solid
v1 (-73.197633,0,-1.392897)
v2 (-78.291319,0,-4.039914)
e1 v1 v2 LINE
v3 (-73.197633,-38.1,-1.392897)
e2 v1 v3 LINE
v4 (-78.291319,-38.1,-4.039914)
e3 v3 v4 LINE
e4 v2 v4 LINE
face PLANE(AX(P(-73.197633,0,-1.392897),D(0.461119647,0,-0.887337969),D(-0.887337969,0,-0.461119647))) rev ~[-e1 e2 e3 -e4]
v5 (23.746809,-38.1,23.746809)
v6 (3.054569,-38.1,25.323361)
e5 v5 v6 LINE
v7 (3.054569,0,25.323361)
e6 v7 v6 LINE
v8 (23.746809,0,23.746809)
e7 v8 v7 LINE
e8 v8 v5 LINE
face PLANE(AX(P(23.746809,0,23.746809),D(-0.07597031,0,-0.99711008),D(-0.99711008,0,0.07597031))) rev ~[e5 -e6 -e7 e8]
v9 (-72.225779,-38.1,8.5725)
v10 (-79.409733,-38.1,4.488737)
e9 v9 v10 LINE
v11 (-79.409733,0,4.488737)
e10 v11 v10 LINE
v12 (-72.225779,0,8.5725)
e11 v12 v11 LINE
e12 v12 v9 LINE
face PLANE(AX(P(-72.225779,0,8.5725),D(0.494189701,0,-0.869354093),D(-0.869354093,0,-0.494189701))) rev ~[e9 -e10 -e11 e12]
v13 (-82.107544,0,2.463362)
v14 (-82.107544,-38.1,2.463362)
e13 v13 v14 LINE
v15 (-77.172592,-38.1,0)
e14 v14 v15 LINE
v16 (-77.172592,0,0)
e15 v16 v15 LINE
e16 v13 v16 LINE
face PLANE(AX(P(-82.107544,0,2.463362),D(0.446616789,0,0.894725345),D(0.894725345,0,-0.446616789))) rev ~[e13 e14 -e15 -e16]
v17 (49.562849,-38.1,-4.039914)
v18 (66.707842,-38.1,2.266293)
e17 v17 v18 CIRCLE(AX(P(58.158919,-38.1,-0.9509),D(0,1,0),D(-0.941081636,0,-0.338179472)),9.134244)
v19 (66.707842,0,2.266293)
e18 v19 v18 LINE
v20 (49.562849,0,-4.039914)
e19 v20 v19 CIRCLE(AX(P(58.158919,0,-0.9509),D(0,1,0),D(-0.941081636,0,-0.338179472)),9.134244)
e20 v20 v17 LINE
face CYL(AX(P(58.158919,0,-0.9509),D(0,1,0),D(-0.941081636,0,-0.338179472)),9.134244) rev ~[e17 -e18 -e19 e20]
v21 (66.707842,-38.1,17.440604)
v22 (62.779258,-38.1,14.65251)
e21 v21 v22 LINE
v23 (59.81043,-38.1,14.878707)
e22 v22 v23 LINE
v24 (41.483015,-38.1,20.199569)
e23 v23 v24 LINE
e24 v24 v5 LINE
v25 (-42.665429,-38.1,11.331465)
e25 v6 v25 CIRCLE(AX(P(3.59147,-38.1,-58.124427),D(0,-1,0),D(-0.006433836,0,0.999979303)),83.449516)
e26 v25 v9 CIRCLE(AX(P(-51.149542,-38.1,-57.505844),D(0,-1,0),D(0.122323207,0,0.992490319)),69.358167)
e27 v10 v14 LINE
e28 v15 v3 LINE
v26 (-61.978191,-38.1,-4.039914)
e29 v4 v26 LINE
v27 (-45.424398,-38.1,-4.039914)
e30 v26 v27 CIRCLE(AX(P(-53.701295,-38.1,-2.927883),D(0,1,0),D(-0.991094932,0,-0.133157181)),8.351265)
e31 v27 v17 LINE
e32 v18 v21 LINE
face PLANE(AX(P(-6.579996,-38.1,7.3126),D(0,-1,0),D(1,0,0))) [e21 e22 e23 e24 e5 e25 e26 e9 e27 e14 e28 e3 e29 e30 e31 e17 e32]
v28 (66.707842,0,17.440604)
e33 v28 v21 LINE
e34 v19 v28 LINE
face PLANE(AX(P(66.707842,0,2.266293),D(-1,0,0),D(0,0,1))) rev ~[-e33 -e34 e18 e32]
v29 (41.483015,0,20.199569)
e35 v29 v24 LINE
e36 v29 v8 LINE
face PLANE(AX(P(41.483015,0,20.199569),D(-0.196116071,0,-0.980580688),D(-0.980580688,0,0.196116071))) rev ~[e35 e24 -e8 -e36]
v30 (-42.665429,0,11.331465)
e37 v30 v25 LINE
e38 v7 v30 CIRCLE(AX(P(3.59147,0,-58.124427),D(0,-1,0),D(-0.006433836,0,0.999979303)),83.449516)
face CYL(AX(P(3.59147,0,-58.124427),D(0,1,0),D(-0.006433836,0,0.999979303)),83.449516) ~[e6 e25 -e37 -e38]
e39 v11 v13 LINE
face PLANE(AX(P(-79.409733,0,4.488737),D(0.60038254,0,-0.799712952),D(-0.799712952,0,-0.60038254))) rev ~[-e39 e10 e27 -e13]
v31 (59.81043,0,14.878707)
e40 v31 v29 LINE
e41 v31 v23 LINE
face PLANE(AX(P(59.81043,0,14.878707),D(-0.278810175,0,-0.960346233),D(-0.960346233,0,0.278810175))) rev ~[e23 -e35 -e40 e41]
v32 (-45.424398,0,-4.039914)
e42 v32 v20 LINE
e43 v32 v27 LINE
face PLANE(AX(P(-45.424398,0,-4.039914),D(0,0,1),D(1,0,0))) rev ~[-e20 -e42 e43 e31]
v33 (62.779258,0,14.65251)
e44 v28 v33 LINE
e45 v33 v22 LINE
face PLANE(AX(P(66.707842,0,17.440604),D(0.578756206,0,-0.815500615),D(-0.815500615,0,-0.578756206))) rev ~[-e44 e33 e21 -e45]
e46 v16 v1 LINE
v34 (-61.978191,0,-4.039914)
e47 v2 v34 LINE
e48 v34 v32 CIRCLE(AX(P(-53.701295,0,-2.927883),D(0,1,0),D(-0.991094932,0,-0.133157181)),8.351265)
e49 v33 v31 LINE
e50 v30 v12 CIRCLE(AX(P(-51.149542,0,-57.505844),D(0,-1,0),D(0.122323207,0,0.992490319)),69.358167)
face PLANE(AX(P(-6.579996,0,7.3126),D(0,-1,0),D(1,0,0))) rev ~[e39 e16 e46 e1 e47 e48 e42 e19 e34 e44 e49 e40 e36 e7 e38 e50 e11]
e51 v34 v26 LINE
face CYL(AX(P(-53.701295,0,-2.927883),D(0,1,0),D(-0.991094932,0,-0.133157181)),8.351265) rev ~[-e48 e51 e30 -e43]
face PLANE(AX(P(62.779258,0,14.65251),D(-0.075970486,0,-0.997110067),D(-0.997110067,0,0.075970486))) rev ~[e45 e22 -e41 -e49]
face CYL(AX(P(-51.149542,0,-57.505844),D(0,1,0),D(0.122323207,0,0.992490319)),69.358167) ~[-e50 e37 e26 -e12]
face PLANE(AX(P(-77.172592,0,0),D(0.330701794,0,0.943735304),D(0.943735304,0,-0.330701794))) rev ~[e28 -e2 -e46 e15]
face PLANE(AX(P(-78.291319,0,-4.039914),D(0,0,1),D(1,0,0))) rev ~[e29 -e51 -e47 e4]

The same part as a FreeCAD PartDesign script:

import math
import FreeCAD as App
import Part
import Sketcher
from FreeCAD import Vector
Q = App.Units.Quantity

doc = App.newDocument("Part")
body = doc.addObject("PartDesign::Body", "Body")

# Sketch on XZ plane
sketch1 = doc.addObject("Sketcher::SketchObject", "Sketch")
body.addObject(sketch1)
sketch1.AttachmentSupport = (doc.XZ_Plane, [""])
sketch1.MapMode = "FlatFace"
sketch1.addGeometry(Part.LineSegment(Vector(23.746809, 23.746809, 0), Vector(3.054569, 25.323361, 0)), False)
sketch1.addGeometry(Part.ArcOfCircle(Part.Circle(Vector(3.59147, -58.124427, 0), Vector(0, 0, 1), 83.449516), math.radians(90.368634), math.radians(123.6632)), False)
sketch1.addGeometry(Part.ArcOfCircle(Part.Circle(Vector(-51.149542, -57.505844, 0), Vector(0, 0, 1), 69.358167), math.radians(82.9738), math.radians(107.690514)), False)
sketch1.addGeometry(Part.LineSegment(Vector(-72.225779, 8.5725, 0), Vector(-79.409733, 4.488737, 0)), False)
sketch1.addGeometry(Part.LineSegment(Vector(-79.409733, 4.488737, 0), Vector(-82.107544, 2.463362, 0)), False)
sketch1.addGeometry(Part.LineSegment(Vector(-82.107544, 2.463362, 0), Vector(-77.172592, 0, 0)), False)
sketch1.addGeometry(Part.LineSegment(Vector(-77.172592, 0, 0), Vector(-73.197633, -1.392897, 0)), False)
sketch1.addGeometry(Part.LineSegment(Vector(-73.197633, -1.392897, 0), Vector(-78.291319, -4.039914, 0)), False)
sketch1.addGeometry(Part.LineSegment(Vector(-78.291319, -4.039914, 0), Vector(-61.978191, -4.039914, 0)), False)
sketch1.addGeometry(Part.ArcOfCircle(Part.Circle(Vector(-53.701295, -2.927883, 0), Vector(0, 0, 1), 8.351265), math.radians(-7.652072), math.radians(187.652072)), False)
sketch1.addGeometry(Part.LineSegment(Vector(-45.424398, -4.039914, 0), Vector(49.562849, -4.039914, 0)), False)
sketch1.addGeometry(Part.ArcOfCircle(Part.Circle(Vector(58.158919, -0.9509, 0), Vector(0, 0, 1), 9.134244), math.radians(20.622688), math.radians(199.765996)), False)
sketch1.addGeometry(Part.LineSegment(Vector(66.707842, 2.266293, 0), Vector(66.707842, 17.440604, 0)), False)
sketch1.addGeometry(Part.LineSegment(Vector(66.707842, 17.440604, 0), Vector(62.779258, 14.65251, 0)), False)
sketch1.addGeometry(Part.LineSegment(Vector(62.779258, 14.65251, 0), Vector(59.81043, 14.878707, 0)), False)
sketch1.addGeometry(Part.LineSegment(Vector(59.81043, 14.878707, 0), Vector(41.483015, 20.199569, 0)), False)
sketch1.addGeometry(Part.LineSegment(Vector(41.483015, 20.199569, 0), Vector(23.746809, 23.746809, 0)), False)
sketch1.addConstraint(Sketcher.Constraint("Coincident", 0, 2, 1, 1))
sketch1.addConstraint(Sketcher.Constraint("Coincident", 1, 2, 2, 1))
sketch1.addConstraint(Sketcher.Constraint("Coincident", 2, 2, 3, 1))
sketch1.addConstraint(Sketcher.Constraint("Coincident", 3, 2, 4, 1))
sketch1.addConstraint(Sketcher.Constraint("Coincident", 4, 2, 5, 1))
sketch1.addConstraint(Sketcher.Constraint("Coincident", 5, 2, 6, 1))
sketch1.addConstraint(Sketcher.Constraint("Coincident", 6, 2, 7, 1))
sketch1.addConstraint(Sketcher.Constraint("Coincident", 7, 2, 8, 1))
sketch1.addConstraint(Sketcher.Constraint("Coincident", 8, 2, 9, 2))
sketch1.addConstraint(Sketcher.Constraint("Coincident", 9, 1, 10, 1))
sketch1.addConstraint(Sketcher.Constraint("Coincident", 10, 2, 11, 2))
sketch1.addConstraint(Sketcher.Constraint("Coincident", 11, 1, 12, 1))
sketch1.addConstraint(Sketcher.Constraint("Coincident", 12, 2, 13, 1))
sketch1.addConstraint(Sketcher.Constraint("Coincident", 13, 2, 14, 1))
sketch1.addConstraint(Sketcher.Constraint("Coincident", 14, 2, 15, 1))
sketch1.addConstraint(Sketcher.Constraint("Coincident", 15, 2, 16, 1))
sketch1.addConstraint(Sketcher.Constraint("Coincident", 16, 2, 0, 1))
sketch1.addConstraint(Sketcher.Constraint("Horizontal", 8))
sketch1.addConstraint(Sketcher.Constraint("Horizontal", 10))
sketch1.addConstraint(Sketcher.Constraint("Vertical", 12))
sketch1.addConstraint(Sketcher.Constraint("PointOnObject", 5, 2, -1))
sketch1.addConstraint(Sketcher.Constraint("Parallel", 0, 14))
sketch1.addConstraint(Sketcher.Constraint("Horizontal", 8, 2, 9, 1))
sketch1.addConstraint(Sketcher.Constraint("DistanceX", 1, 2, 0, 2, Q("1.7999999 in")))
sketch1.addConstraint(Sketcher.Constraint("DistanceY", -1, 1, 2, 2, Q("0.3375 in")))
sketch1.addConstraint(Sketcher.Constraint("Radius", 1, 83.449516))
sketch1.addConstraint(Sketcher.Constraint("Radius", 2, 69.358167))
sketch1.addConstraint(Sketcher.Constraint("Radius", 9, 8.351265))
sketch1.addConstraint(Sketcher.Constraint("Radius", 11, 9.134244))
sketch1.addConstraint(Sketcher.Constraint("DistanceY", 12, 1, 12, 2, 15.174311))
sketch1.addConstraint(Sketcher.Constraint("DistanceY", 11, 3, -1, 1, 0.9509))
sketch1.addConstraint(Sketcher.Constraint("DistanceX", 9, 1, -1, 1, 45.424398))
sketch1.addConstraint(Sketcher.Constraint("DistanceX", 0, 2, 1, 3, 0.536901))
sketch1.addConstraint(Sketcher.Constraint("DistanceX", 4, 2, 2, 3, 30.958002))
sketch1.addConstraint(Sketcher.Constraint("DistanceX", 3, 2, 6, 2, 6.2121))
sketch1.addConstraint(Sketcher.Constraint("DistanceX", 5, 2, 8, 2, 15.194401))
sketch1.addConstraint(Sketcher.Constraint("DistanceY", 14, 2, 16, 2, 8.868102))
sketch1.addConstraint(Sketcher.Constraint("DistanceY", 13, 2, 16, 2, 9.094299))
sketch1.addConstraint(Sketcher.Constraint("Distance", 13, 4.817389))
sketch1.addConstraint(Sketcher.Constraint("Distance", 16, 18.087452))
sketch1.addConstraint(Sketcher.Constraint("DistanceX", 8, 1, 8, 2, 16.313128))
sketch1.addConstraint(Sketcher.Constraint("DistanceX", 10, 1, 10, 2, 94.987247))
sketch1.addConstraint(Sketcher.Constraint("DistanceX", -1, 1, 1, 3, 3.59147))
sketch1.addConstraint(Sketcher.Constraint("DistanceX", -1, 1, 11, 3, 58.158919))
sketch1.addConstraint(Sketcher.Constraint("DistanceY", -1, 1, 0, 2, 25.323361))
sketch1.addConstraint(Sketcher.Constraint("DistanceX", 2, 2, -1, 1, 72.225779))
sketch1.addConstraint(Sketcher.Constraint("DistanceY", -1, 1, 4, 2, 2.463362))
sketch1.addConstraint(Sketcher.Constraint("DistanceX", 5, 2, -1, 1, 77.172592))
sketch1.addConstraint(Sketcher.Constraint("DistanceX", -1, 1, 12, 2, 66.707842))
sketch1.addConstraint(Sketcher.Constraint("DistanceY", -1, 1, 13, 2, 14.65251))
sketch1.addConstraint(Sketcher.Constraint("DistanceX", -1, 1, 14, 2, 59.81043))
sketch1.addConstraint(Sketcher.Constraint("DistanceY", -1, 1, 15, 2, 20.199569))
sketch1.addConstraint(Sketcher.Constraint("DistanceX", 3, 2, 9, 3, 25.708438))
sketch1.addConstraint(Sketcher.Constraint("DistanceY", 9, 3, 3, 2, 7.41662))
sketch1.addConstraint(Sketcher.Constraint("DistanceY", 6, 2, 4, 2, 3.856259))
pad1 = doc.addObject("PartDesign::Pad", "Pad")
body.addObject(pad1)
pad1.Profile = sketch1
pad1.Length = Q("1.5 in")

doc.recompute()
